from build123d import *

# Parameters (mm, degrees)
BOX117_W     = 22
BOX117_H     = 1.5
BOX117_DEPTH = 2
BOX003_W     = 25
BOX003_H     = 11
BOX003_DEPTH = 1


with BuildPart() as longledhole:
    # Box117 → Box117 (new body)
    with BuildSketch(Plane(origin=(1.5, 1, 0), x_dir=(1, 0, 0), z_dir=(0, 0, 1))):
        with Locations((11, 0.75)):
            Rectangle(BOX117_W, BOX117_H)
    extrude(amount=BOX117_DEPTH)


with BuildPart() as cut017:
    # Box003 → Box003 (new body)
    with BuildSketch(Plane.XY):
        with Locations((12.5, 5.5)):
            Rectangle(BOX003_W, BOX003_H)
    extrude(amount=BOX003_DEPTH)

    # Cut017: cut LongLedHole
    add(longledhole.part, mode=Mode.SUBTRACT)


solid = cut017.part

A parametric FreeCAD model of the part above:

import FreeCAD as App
import Part
import Sketcher

V = App.Vector

doc = App.newDocument("Part")
body = doc.addObject("PartDesign::Body", "Body")

# Sketch on XY plane
sketch1 = body.newObject("Sketcher::SketchObject", "Sketch")
sketch1.AttachmentSupport = (doc.getObject("XY_Plane"), [""])
sketch1.MapMode = "FlatFace"
sketch1.addGeometry([
    Part.LineSegment(V(1.5, 2.5, 0), V(1.5, 1, 0)),
    Part.LineSegment(V(1.5, 1, 0), V(23.5, 1, 0)),
    Part.LineSegment(V(23.5, 1, 0), V(23.5, 2.5, 0)),
    Part.LineSegment(V(23.5, 2.5, 0), V(1.5, 2.5, 0)),
], False)
sketch1.addConstraint([
    Sketcher.Constraint("Coincident", 0, 2, 1, 1),
    Sketcher.Constraint("Coincident", 1, 2, 2, 1),
    Sketcher.Constraint("Coincident", 2, 2, 3, 1),
    Sketcher.Constraint("Coincident", 3, 2, 0, 1),
    Sketcher.Constraint("Vertical", 0),
    Sketcher.Constraint("Horizontal", 1),
    Sketcher.Constraint("Vertical", 2),
    Sketcher.Constraint("Horizontal", 3),
    Sketcher.Constraint("DistanceX", 1, 1, 1, 2, 22.0),
    Sketcher.Constraint("DistanceY", 0, 2, 0, 1, 1.5),
    Sketcher.Constraint("DistanceY", -1, 1, 0, 2, 1.0),
    Sketcher.Constraint("DistanceX", -1, 1, 0, 2, 1.5),
])
pad1 = body.newObject("PartDesign::Pad", "Pad")
pad1.Profile = sketch1
pad1.Length = 2
body2 = doc.addObject("PartDesign::Body", "Body001")

# Sketch on XY plane
sketch2 = body2.newObject("Sketcher::SketchObject", "Sketch001")
sketch2.AttachmentSupport = (doc.getObject("XY_Plane001"), [""])
sketch2.MapMode = "FlatFace"
sketch2.addGeometry([
    Part.LineSegment(V(0, 11, 0), V(0, 0, 0)),
    Part.LineSegment(V(0, 0, 0), V(25, 0, 0)),
    Part.LineSegment(V(25, 0, 0), V(25, 11, 0)),
    Part.LineSegment(V(25, 11, 0), V(0, 11, 0)),
], False)
sketch2.addConstraint([
    Sketcher.Constraint("Coincident", 0, 2, 1, 1),
    Sketcher.Constraint("Coincident", 1, 2, 2, 1),
    Sketcher.Constraint("Coincident", 2, 2, 3, 1),
    Sketcher.Constraint("Coincident", 3, 2, 0, 1),
    Sketcher.Constraint("Vertical", 0),
    Sketcher.Constraint("Horizontal", 1),
    Sketcher.Constraint("Vertical", 2),
    Sketcher.Constraint("Horizontal", 3),
    Sketcher.Constraint("Coincident", 0, 2, -1, 1),
    Sketcher.Constraint("DistanceX", 1, 1, 1, 2, 25.0),
    Sketcher.Constraint("DistanceY", 0, 2, 0, 1, 11.0),
])
pad2 = body2.newObject("PartDesign::Pad", "Pad001")
pad2.Profile = sketch2
pad2.Length = 1
doc.recompute()

boolean = body2.newObject("PartDesign::Boolean", "Boolean")
boolean.Type = "Cut"
boolean.addObjects([body])

doc.recompute()
